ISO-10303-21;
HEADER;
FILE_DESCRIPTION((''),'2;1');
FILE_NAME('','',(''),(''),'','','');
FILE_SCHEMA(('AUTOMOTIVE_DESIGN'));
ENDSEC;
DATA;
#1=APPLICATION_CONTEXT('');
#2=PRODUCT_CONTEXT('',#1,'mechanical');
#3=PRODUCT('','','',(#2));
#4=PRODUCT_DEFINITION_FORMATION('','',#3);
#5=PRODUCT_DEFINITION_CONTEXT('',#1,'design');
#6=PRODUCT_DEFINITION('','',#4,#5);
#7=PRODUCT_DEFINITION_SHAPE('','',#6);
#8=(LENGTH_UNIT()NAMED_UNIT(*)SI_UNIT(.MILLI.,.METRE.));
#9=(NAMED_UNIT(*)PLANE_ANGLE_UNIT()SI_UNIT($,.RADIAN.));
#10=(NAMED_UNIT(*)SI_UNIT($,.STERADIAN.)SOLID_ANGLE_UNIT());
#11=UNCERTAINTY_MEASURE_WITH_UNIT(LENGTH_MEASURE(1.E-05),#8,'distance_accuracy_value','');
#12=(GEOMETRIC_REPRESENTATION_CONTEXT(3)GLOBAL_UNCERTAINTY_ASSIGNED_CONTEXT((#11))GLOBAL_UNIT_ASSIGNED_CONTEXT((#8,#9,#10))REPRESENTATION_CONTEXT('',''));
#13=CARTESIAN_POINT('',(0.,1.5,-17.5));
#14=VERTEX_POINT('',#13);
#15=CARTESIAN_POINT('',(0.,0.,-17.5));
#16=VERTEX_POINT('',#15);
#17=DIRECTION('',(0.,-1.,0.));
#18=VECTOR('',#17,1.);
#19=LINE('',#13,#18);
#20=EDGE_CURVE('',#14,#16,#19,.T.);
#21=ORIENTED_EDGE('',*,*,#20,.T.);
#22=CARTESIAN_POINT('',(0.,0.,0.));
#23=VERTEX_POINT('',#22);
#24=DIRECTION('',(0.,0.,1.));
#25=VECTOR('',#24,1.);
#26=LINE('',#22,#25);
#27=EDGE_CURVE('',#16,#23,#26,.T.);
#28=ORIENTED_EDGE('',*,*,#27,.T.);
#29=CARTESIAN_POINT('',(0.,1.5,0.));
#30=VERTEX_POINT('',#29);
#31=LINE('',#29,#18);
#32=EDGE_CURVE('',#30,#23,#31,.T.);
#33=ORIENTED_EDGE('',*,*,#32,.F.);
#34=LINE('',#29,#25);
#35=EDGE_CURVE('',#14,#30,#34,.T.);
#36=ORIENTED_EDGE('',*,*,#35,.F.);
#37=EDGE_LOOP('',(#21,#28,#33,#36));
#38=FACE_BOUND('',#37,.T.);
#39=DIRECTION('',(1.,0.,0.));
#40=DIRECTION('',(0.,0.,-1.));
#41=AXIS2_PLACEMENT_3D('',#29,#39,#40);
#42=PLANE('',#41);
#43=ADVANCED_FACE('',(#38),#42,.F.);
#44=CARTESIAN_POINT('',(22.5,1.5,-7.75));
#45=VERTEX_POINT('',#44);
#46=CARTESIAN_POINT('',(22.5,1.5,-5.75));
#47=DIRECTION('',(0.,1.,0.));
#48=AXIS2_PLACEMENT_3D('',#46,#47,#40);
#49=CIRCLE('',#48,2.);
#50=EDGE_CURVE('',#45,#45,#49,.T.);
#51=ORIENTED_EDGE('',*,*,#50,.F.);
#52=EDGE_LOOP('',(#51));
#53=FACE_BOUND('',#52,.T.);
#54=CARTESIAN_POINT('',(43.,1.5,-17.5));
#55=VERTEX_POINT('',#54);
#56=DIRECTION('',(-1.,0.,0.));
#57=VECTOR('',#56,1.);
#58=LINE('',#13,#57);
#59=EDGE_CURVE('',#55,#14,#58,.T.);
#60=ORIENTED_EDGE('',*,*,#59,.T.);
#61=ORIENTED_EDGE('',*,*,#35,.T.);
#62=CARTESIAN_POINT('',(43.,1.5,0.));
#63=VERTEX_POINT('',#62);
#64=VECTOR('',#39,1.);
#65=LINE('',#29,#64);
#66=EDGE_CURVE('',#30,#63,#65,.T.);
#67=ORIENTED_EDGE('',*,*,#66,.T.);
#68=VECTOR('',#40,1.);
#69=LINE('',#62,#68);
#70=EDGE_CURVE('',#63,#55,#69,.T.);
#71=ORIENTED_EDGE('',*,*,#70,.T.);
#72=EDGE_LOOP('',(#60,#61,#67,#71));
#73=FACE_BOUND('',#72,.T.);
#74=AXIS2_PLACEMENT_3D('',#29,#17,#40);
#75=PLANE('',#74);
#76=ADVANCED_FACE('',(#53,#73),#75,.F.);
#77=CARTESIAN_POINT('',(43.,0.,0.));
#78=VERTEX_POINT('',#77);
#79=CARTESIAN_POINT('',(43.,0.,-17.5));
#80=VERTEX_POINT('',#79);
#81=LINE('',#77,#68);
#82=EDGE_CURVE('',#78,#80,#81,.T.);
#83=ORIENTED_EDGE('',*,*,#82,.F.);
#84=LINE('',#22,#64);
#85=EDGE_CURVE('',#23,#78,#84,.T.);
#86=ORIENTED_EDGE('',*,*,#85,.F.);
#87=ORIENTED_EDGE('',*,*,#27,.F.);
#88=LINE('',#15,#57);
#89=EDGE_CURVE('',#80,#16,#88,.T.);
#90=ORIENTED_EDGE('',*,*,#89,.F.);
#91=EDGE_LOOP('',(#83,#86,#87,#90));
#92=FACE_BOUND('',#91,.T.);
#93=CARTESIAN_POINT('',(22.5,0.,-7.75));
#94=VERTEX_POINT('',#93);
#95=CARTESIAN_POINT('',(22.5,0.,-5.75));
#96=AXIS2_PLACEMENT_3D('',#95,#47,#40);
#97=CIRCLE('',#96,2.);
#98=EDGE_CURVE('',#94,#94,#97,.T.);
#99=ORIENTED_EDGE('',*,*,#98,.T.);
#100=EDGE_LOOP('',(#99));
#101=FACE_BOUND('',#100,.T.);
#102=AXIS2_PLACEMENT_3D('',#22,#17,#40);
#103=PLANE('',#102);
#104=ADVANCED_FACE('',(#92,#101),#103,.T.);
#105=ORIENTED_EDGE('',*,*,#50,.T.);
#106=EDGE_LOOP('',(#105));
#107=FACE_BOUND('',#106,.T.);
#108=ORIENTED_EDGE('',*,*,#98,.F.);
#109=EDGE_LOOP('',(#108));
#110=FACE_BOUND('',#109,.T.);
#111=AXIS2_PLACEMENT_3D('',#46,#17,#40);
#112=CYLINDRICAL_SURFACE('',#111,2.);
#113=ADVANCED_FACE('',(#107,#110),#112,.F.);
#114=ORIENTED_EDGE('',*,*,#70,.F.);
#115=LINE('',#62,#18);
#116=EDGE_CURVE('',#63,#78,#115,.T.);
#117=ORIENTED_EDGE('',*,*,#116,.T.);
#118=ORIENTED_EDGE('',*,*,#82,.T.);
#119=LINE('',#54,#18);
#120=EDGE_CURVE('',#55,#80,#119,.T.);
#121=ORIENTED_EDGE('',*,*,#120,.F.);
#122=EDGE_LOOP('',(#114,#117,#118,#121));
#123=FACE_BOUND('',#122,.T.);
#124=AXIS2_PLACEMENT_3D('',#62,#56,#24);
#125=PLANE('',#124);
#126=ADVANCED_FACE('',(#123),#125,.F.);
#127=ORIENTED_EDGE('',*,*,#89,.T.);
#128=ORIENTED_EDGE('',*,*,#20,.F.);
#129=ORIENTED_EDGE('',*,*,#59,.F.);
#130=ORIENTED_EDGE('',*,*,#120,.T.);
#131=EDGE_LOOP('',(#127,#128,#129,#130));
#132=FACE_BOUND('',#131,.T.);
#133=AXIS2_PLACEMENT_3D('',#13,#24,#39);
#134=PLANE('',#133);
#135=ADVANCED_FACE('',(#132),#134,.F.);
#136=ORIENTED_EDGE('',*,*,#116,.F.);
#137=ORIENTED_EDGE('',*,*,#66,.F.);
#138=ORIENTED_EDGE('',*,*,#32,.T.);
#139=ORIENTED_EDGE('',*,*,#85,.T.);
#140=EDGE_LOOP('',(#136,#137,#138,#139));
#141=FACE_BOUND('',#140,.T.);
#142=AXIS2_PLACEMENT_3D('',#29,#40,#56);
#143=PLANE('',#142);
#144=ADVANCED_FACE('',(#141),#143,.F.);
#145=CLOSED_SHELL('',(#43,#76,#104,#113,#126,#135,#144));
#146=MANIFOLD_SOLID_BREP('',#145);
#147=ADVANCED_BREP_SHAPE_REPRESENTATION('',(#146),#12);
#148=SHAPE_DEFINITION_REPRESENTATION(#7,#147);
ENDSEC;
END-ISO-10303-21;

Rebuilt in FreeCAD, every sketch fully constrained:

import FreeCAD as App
import Part
import Sketcher
from FreeCAD import Vector


def add_polygon(sketch, points):
    """Adds a closed chain of lines whose ends are joined by coincident constraints."""
    first, n = sketch.GeometryCount, len(points)
    for a, b in zip(points, points[1:] + points[:1]):
        sketch.addGeometry(Part.LineSegment(App.Vector(*a, 0), App.Vector(*b, 0)), False)
    for i in range(n):
        sketch.addConstraint(Sketcher.Constraint("Coincident", first + i, 2, first + (i + 1) % n, 1))

doc = App.newDocument("Part")
params = doc.addObject("Spreadsheet::Sheet", "Params")
for row, (alias, value) in enumerate([
    ("sketch1_diameter", "4 mm"),
    ("sketch1_width", "43 mm"),
    ("sketch1_height", "17.5 mm"),
    ("pad1_length", "1.5 mm"),
], start=1):
    params.set(f"A{row}", alias)
    params.set(f"B{row}", "=" + value)
    params.setAlias(f"B{row}", alias)

body = doc.addObject("PartDesign::Body", "Body")

sketch1 = body.newObject("Sketcher::SketchObject", "Sketch")
sketch1.AttachmentSupport = (doc.getObject("XZ_Plane"), [""])
sketch1.MapMode = "FlatFace"
add_polygon(sketch1, [(0, -17.5), (0, 0), (43, 0), (43, -17.5)])
sketch1.addGeometry(Part.Circle(Vector(22.5, -5.8, 0), Vector(0, 0, 1), 2), False)
sketch1.addConstraint([
    Sketcher.Constraint("Vertical", 0),
    Sketcher.Constraint("Horizontal", 1),
    Sketcher.Constraint("Vertical", 2),
    Sketcher.Constraint("Horizontal", 3),
    Sketcher.Constraint("Coincident", 0, 2, -1, 1),
    Sketcher.Constraint("Diameter", 4, 4.0),
    Sketcher.Constraint("DistanceX", 1, 1, 1, 2, 43.0),
    Sketcher.Constraint("DistanceY", 0, 1, 0, 2, 17.5),
    Sketcher.Constraint("DistanceX", -1, 1, 4, 3, 22.5),
    Sketcher.Constraint("DistanceY", 4, 3, -1, 1, 5.75),
])
sketch1.setExpression("Constraints[9]", "Params.sketch1_diameter")
sketch1.setExpression("Constraints[10]", "Params.sketch1_width")
sketch1.setExpression("Constraints[11]", "Params.sketch1_height")
pad1 = body.newObject("PartDesign::Pad", "Pad")
pad1.Profile = sketch1
pad1.setExpression("Length", "Params.pad1_length")
pad1.Reversed = True

doc.recompute()
